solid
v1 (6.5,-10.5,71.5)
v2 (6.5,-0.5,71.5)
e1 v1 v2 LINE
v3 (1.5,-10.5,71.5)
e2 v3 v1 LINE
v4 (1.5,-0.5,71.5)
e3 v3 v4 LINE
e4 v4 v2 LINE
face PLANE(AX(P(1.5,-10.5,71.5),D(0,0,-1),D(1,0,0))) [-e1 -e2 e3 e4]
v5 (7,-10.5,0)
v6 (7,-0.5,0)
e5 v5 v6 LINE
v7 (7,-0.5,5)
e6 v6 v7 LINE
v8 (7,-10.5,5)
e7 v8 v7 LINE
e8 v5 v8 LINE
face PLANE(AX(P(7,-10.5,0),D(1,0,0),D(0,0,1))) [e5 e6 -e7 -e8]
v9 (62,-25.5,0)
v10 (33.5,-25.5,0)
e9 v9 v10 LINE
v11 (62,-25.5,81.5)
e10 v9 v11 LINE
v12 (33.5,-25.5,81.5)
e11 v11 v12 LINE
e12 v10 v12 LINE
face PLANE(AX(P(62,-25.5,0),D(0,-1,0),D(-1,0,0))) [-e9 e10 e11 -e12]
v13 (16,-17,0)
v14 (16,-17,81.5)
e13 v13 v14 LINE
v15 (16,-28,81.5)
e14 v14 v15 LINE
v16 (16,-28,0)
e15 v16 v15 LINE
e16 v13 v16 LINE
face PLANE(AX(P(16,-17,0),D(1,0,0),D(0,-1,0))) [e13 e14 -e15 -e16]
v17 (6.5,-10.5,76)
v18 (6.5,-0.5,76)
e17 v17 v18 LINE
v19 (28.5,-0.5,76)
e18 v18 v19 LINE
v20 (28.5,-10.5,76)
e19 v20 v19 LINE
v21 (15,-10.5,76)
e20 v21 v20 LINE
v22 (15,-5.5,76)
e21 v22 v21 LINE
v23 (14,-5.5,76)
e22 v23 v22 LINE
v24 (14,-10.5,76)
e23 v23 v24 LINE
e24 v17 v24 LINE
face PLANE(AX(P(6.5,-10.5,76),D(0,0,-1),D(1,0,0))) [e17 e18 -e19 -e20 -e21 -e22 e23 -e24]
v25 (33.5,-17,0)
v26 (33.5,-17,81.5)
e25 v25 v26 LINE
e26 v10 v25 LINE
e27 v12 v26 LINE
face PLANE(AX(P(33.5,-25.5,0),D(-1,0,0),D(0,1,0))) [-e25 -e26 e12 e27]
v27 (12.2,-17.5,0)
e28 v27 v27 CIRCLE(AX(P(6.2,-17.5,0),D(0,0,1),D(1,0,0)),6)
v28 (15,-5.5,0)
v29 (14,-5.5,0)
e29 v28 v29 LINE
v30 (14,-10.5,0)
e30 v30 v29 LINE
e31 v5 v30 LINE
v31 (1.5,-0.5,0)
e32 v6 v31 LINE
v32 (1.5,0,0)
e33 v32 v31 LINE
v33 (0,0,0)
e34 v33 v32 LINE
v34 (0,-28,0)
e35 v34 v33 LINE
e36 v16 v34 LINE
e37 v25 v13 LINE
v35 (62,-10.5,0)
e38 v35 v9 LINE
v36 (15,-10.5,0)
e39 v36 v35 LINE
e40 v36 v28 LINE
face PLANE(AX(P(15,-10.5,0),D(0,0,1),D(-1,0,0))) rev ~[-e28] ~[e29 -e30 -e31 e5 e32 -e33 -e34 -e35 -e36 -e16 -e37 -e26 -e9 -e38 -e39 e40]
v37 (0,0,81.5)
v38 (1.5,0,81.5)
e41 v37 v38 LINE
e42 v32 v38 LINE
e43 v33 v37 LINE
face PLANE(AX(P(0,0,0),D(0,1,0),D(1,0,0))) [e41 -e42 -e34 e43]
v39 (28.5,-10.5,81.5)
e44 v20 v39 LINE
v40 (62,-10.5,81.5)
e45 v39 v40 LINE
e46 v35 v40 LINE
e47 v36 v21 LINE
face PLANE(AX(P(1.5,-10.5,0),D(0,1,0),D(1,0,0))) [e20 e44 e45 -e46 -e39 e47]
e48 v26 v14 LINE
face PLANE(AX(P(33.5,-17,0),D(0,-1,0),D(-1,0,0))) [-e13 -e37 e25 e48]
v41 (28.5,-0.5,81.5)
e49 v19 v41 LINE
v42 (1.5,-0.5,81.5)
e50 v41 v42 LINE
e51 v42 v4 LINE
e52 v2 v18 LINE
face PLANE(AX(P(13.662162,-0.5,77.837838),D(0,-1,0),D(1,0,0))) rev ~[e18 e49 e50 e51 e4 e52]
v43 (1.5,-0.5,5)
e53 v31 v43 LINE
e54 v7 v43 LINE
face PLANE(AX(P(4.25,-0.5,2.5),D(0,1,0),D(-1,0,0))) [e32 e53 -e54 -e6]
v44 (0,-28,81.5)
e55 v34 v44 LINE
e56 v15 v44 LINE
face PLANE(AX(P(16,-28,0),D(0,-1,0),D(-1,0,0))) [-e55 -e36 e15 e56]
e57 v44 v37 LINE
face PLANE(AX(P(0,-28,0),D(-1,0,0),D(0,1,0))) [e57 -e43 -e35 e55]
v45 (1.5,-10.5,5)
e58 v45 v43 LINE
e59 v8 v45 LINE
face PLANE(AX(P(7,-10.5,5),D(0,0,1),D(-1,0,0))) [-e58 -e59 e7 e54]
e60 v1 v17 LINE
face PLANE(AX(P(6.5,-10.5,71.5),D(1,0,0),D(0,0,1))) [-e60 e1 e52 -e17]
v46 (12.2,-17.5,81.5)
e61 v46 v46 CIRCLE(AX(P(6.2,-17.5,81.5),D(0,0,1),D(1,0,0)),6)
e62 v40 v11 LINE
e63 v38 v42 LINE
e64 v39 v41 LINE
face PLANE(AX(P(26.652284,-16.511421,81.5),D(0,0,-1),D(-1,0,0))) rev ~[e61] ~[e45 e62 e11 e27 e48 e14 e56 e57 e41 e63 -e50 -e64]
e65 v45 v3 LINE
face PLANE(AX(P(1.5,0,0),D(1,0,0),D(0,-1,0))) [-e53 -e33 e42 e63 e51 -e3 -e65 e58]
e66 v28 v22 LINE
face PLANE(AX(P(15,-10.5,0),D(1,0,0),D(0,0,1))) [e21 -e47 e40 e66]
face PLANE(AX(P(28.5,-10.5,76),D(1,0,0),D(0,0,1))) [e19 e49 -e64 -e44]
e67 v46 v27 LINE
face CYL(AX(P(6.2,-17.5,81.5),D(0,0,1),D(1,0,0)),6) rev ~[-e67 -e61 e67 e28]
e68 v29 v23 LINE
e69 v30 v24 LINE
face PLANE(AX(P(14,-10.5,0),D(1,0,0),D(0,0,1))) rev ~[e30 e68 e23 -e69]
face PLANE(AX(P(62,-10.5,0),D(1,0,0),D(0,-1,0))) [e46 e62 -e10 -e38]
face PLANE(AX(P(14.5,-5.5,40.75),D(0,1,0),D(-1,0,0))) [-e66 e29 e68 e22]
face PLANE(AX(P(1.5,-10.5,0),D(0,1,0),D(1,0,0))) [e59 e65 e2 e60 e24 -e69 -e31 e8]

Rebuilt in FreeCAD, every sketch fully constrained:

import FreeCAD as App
import Part
import Sketcher
from FreeCAD import Vector

doc = App.newDocument("Part")
body = doc.addObject("PartDesign::Body", "Body")

sketch1 = doc.addObject("Sketcher::SketchObject", "Sketch")
body.addObject(sketch1)
sketch1.AttachmentSupport = (doc.XY_Plane, [""])
sketch1.MapMode = "FlatFace"
sketch1.addGeometry([
    Part.LineSegment(Vector(62, -25.5, 0), Vector(62, -10.5, 0)),
    Part.LineSegment(Vector(62, -10.5, 0), Vector(1.5, -10.5, 0)),
    Part.LineSegment(Vector(1.5, -10.5, 0), Vector(1.5, 0, 0)),
    Part.LineSegment(Vector(1.5, 0, 0), Vector(0, 0, 0)),
    Part.LineSegment(Vector(0, 0, 0), Vector(0, -28, 0)),
    Part.LineSegment(Vector(0, -28, 0), Vector(16, -28, 0)),
    Part.LineSegment(Vector(16, -28, 0), Vector(16, -17, 0)),
    Part.LineSegment(Vector(16, -17, 0), Vector(33.5, -17, 0)),
    Part.LineSegment(Vector(33.5, -17, 0), Vector(33.5, -25.5, 0)),
    Part.LineSegment(Vector(33.5, -25.5, 0), Vector(62, -25.5, 0)),
], False)
sketch1.addConstraint([
    Sketcher.Constraint("Coincident", 0, 2, 1, 1),
    Sketcher.Constraint("Coincident", 1, 2, 2, 1),
    Sketcher.Constraint("Coincident", 2, 2, 3, 1),
    Sketcher.Constraint("Coincident", 3, 2, 4, 1),
    Sketcher.Constraint("Coincident", 4, 2, 5, 1),
    Sketcher.Constraint("Coincident", 5, 2, 6, 1),
    Sketcher.Constraint("Coincident", 6, 2, 7, 1),
    Sketcher.Constraint("Coincident", 7, 2, 8, 1),
    Sketcher.Constraint("Coincident", 8, 2, 9, 1),
    Sketcher.Constraint("Coincident", 9, 2, 0, 1),
    Sketcher.Constraint("Vertical", 0),
    Sketcher.Constraint("Horizontal", 1),
    Sketcher.Constraint("Vertical", 2),
    Sketcher.Constraint("Horizontal", 3),
    Sketcher.Constraint("Vertical", 4),
    Sketcher.Constraint("Horizontal", 5),
    Sketcher.Constraint("Vertical", 6),
    Sketcher.Constraint("Horizontal", 7),
    Sketcher.Constraint("Vertical", 8),
    Sketcher.Constraint("Horizontal", 9),
    Sketcher.Constraint("Coincident", 3, 2, -1, 1),
    Sketcher.Constraint("DistanceX", 5, 1, 5, 2, 16.0),
    Sketcher.Constraint("DistanceY", 0, 1, 0, 2, 15.0),
    Sketcher.Constraint("DistanceY", 4, 2, 4, 1, 28.0),
    Sketcher.Constraint("DistanceY", 6, 1, 6, 2, 11.0),
    Sketcher.Constraint("DistanceX", 1, 2, 1, 1, 60.5),
    Sketcher.Constraint("DistanceX", 3, 2, 3, 1, 1.5),
    Sketcher.Constraint("DistanceX", 7, 1, 7, 2, 17.5),
    Sketcher.Constraint("DistanceY", 2, 1, 2, 2, 10.5),
])
pad1 = doc.addObject("PartDesign::Pad", "Pad")
body.addObject(pad1)
pad1.Profile = sketch1
pad1.Length = 81.5

sketch2 = doc.addObject("Sketcher::SketchObject", "Sketch001")
body.addObject(sketch2)
sketch2.AttachmentSupport = (doc.XY_Plane, [""])
sketch2.MapMode = "FlatFace"
sketch2.AttachmentOffset = App.Placement(Vector(0, 0, 81.5), App.Rotation())
sketch2.addGeometry(Part.Circle(Vector(6, -18, 0), Vector(0, 0, 1), 6), False)
sketch2.addConstraint([
    Sketcher.Constraint("Diameter", 0, 12.0),
    Sketcher.Constraint("DistanceX", -1, 1, 0, 3, 6.2),
    Sketcher.Constraint("DistanceY", 0, 3, -1, 1, 17.5),
])
pocket1 = doc.addObject("PartDesign::Pocket", "Pocket")
body.addObject(pocket1)
pocket1.Profile = sketch2
pocket1.Type = "ThroughAll"

sketch3 = doc.addObject("Sketcher::SketchObject", "Sketch002")
body.addObject(sketch3)
sketch3.AttachmentSupport = (doc.XZ_Plane, [""])
sketch3.MapMode = "FlatFace"
sketch3.AttachmentOffset = App.Placement(Vector(0, 0, 10.5), App.Rotation())
sketch3.addGeometry([
    Part.LineSegment(Vector(7, 5, 0), Vector(7, 0, 0)),
    Part.LineSegment(Vector(7, 0, 0), Vector(1.5, 0, 0)),
    Part.LineSegment(Vector(1.5, 0, 0), Vector(1.5, 5, 0)),
    Part.LineSegment(Vector(1.5, 5, 0), Vector(7, 5, 0)),
    Part.LineSegment(Vector(1.5, 81.5, 0), Vector(28.5, 81.5, 0)),
    Part.LineSegment(Vector(28.5, 81.5, 0), Vector(28.5, 76, 0)),
    Part.LineSegment(Vector(28.5, 76, 0), Vector(6.5, 76, 0)),
    Part.LineSegment(Vector(6.5, 76, 0), Vector(6.5, 71.5, 0)),
    Part.LineSegment(Vector(6.5, 71.5, 0), Vector(1.5, 71.5, 0)),
    Part.LineSegment(Vector(1.5, 71.5, 0), Vector(1.5, 81.5, 0)),
], False)
sketch3.addConstraint([
    Sketcher.Constraint("Coincident", 0, 2, 1, 1),
    Sketcher.Constraint("Coincident", 1, 2, 2, 1),
    Sketcher.Constraint("Coincident", 2, 2, 3, 1),
    Sketcher.Constraint("Coincident", 3, 2, 0, 1),
    Sketcher.Constraint("Coincident", 4, 2, 5, 1),
    Sketcher.Constraint("Coincident", 5, 2, 6, 1),
    Sketcher.Constraint("Coincident", 6, 2, 7, 1),
    Sketcher.Constraint("Coincident", 7, 2, 8, 1),
    Sketcher.Constraint("Coincident", 8, 2, 9, 1),
    Sketcher.Constraint("Coincident", 9, 2, 4, 1),
    Sketcher.Constraint("Vertical", 0),
    Sketcher.Constraint("Horizontal", 1),
    Sketcher.Constraint("Vertical", 2),
    Sketcher.Constraint("Horizontal", 3),
    Sketcher.Constraint("Horizontal", 4),
    Sketcher.Constraint("Vertical", 5),
    Sketcher.Constraint("Horizontal", 6),
    Sketcher.Constraint("Vertical", 7),
    Sketcher.Constraint("Horizontal", 8),
    Sketcher.Constraint("Vertical", 9),
    Sketcher.Constraint("PointOnObject", 0, 2, -1),
    Sketcher.Constraint("Vertical", 2, 2, 8, 2),
    Sketcher.Constraint("Equal", 8, 0),
    Sketcher.Constraint("Equal", 3, 5),
    Sketcher.Constraint("DistanceX", 4, 1, 4, 2, 27.0),
    Sketcher.Constraint("DistanceX", 6, 2, 6, 1, 22.0),
    Sketcher.Constraint("DistanceY", 9, 1, 9, 2, 10.0),
    Sketcher.Constraint("DistanceX", 1, 2, 1, 1, 5.5),
    Sketcher.Constraint("DistanceX", -1, 1, 0, 2, 7.0),
    Sketcher.Constraint("DistanceY", -1, 1, 5, 2, 76.0),
])
pad2 = doc.addObject("PartDesign::Pad", "Pad001")
body.addObject(pad2)
pad2.Profile = sketch3
pad2.Length = 10
pad2.Reversed = True

sketch4 = doc.addObject("Sketcher::SketchObject", "Sketch003")
body.addObject(sketch4)
sketch4.AttachmentSupport = (doc.XZ_Plane, [""])
sketch4.MapMode = "FlatFace"
sketch4.AttachmentOffset = App.Placement(Vector(0, 0, 10.5), App.Rotation())
sketch4.addGeometry([
    Part.LineSegment(Vector(15, 81.5, 0), Vector(15, 0, 0)),
    Part.LineSegment(Vector(15, 0, 0), Vector(14, 0, 0)),
    Part.LineSegment(Vector(14, 0, 0), Vector(14, 81.5, 0)),
    Part.LineSegment(Vector(14, 81.5, 0), Vector(15, 81.5, 0)),
], False)
sketch4.addConstraint([
    Sketcher.Constraint("Coincident", 0, 2, 1, 1),
    Sketcher.Constraint("Coincident", 1, 2, 2, 1),
    Sketcher.Constraint("Coincident", 2, 2, 3, 1),
    Sketcher.Constraint("Coincident", 3, 2, 0, 1),
    Sketcher.Constraint("Vertical", 0),
    Sketcher.Constraint("Horizontal", 1),
    Sketcher.Constraint("Vertical", 2),
    Sketcher.Constraint("Horizontal", 3),
    Sketcher.Constraint("PointOnObject", 0, 2, -1),
    Sketcher.Constraint("DistanceX", 1, 2, 1, 1, 1.0),
    Sketcher.Constraint("DistanceY", 0, 2, 0, 1, 81.5),
    Sketcher.Constraint("DistanceX", -1, 1, 0, 2, 15.0),
])
pad3 = doc.addObject("PartDesign::Pad", "Pad002")
body.addObject(pad3)
pad3.Profile = sketch4
pad3.Length = 5
pad3.Reversed = True

doc.recompute()
